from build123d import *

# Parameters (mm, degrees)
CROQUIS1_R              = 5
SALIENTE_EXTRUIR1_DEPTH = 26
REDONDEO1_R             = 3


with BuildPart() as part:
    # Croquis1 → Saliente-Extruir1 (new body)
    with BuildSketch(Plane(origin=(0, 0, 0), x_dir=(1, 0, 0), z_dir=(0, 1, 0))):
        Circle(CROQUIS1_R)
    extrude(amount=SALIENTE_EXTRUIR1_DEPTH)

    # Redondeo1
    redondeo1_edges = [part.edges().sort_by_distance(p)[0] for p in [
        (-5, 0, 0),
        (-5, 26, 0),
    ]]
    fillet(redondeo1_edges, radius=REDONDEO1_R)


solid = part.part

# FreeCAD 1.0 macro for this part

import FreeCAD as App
import Part
import Sketcher

V = App.Vector


def edges_at(feature, points):
    """Names of the edges that pass closest to the given points."""
    edges = feature.Shape.Edges
    near = lambda p: min(range(len(edges)), key=lambda i: edges[i].distToShape(Part.Vertex(*p))[0])
    return sorted({f"Edge{near(p) + 1}" for p in points})

doc = App.newDocument("Part")
body = doc.addObject("PartDesign::Body", "Body")

# Sketch on XZ plane
sketch1 = doc.addObject("Sketcher::SketchObject", "Sketch")
body.addObject(sketch1)
sketch1.AttachmentSupport = (doc.XZ_Plane, [""])
sketch1.MapMode = "FlatFace"
sketch1.addGeometry(Part.Circle(V(0, 0, 0), V(0, 0, 1), 5), False)
sketch1.addConstraint([
    Sketcher.Constraint("Coincident", 0, 3, -1, 1),
    Sketcher.Constraint("Diameter", 0, 10.0),
])
pad1 = doc.addObject("PartDesign::Pad", "Pad")
body.addObject(pad1)
pad1.Profile = sketch1
pad1.Length = 26
pad1.Reversed = True
doc.recompute()

fillet = doc.addObject("PartDesign::Fillet", "Fillet")
body.addObject(fillet)
fillet.Base = (pad1, edges_at(pad1, [(-5, 0, 0), (-5, 26, 0)]))
fillet.Radius = 3

doc.recompute()
